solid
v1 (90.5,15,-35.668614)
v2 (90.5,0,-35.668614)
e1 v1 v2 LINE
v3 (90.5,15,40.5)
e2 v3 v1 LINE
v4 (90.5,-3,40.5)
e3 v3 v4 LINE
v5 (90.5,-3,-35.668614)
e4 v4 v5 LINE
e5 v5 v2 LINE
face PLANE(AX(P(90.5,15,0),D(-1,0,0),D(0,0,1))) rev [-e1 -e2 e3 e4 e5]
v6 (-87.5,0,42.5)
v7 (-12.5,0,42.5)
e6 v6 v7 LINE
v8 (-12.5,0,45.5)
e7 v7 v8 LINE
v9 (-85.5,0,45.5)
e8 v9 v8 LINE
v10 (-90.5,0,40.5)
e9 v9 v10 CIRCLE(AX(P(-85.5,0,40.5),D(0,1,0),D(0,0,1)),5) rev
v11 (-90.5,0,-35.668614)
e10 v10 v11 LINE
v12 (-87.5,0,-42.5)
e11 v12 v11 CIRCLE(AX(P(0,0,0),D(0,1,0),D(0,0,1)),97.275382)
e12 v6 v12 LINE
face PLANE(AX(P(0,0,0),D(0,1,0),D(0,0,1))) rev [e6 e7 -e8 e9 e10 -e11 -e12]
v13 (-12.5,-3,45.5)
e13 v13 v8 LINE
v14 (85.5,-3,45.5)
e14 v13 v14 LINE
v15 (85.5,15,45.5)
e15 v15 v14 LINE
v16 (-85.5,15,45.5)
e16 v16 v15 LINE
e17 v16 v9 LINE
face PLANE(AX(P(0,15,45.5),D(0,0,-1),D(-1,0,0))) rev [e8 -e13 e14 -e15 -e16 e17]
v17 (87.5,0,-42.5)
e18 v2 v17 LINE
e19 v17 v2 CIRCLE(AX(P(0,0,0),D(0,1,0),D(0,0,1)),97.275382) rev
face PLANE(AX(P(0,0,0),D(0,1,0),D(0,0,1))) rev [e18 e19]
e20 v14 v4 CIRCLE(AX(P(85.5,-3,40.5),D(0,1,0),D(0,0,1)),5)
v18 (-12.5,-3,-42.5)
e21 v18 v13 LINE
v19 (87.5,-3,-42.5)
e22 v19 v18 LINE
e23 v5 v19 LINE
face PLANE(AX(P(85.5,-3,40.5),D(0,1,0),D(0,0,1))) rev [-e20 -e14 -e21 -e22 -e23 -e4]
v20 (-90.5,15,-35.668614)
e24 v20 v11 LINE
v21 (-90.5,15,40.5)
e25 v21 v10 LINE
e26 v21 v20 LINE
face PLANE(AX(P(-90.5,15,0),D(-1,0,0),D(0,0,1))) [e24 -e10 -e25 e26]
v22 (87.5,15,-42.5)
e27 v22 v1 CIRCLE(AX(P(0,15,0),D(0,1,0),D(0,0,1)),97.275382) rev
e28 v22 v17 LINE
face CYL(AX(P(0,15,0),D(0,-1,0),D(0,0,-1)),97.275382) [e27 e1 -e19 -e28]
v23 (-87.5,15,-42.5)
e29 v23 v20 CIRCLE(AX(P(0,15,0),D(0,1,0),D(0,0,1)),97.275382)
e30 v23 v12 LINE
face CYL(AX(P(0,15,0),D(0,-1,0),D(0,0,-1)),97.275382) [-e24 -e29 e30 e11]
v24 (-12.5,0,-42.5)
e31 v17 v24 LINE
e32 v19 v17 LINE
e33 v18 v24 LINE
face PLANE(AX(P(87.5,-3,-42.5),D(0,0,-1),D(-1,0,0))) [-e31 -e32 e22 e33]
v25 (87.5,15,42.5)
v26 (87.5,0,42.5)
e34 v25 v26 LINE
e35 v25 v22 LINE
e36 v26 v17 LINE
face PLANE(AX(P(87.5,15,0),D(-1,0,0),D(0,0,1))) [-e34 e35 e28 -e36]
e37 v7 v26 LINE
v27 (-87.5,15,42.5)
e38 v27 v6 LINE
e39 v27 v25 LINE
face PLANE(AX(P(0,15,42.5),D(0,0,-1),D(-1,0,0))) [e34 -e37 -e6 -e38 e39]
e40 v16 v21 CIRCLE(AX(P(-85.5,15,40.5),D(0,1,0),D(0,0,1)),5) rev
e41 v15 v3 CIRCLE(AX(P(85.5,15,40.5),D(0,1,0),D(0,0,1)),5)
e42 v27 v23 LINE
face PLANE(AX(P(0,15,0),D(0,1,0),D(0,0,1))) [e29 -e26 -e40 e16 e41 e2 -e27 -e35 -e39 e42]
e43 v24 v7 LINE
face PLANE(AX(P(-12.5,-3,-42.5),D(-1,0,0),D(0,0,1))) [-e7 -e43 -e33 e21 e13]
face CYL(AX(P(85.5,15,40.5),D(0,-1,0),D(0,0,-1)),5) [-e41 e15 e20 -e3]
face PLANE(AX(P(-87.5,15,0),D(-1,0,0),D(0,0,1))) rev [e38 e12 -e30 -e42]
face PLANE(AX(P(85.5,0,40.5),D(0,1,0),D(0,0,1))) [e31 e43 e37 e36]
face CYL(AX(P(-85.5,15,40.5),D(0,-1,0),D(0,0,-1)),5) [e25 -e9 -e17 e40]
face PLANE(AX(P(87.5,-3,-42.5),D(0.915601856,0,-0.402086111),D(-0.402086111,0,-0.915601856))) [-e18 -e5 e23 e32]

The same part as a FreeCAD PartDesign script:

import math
import FreeCAD as App
import Part
import Sketcher
Q = App.Units.Quantity

doc = App.newDocument("Part")
params = doc.addObject("Spreadsheet::Sheet", "Params")
for row, (alias, value) in enumerate([
    ("sketch1_radius", "5 mm"),
    ("sketch1_width", "171 mm"),
    ("sketch1_width2", "175 mm"),
    ("sketch1_height", "85 mm"),
    ("pad1_length", "15 mm"),
    ("sketch2_radius", "5 mm"),
    ("sketch2_width", "100 mm"),
    ("sketch2_width2", "98 mm"),
    ("sketch2_height", "88 mm"),
    ("pad2_length", "3 mm"),
], start=1):
    params.set(f"A{row}", alias)
    params.set(f"B{row}", "=" + value)
    params.setAlias(f"B{row}", alias)

body = doc.addObject("PartDesign::Body", "Body")

sketch1 = doc.addObject("Sketcher::SketchObject", "Sketch")
body.addObject(sketch1)
sketch1.AttachmentSupport = (doc.XZ_Plane, [""])
sketch1.MapMode = "FlatFace"
sketch1.addGeometry([
    Part.ArcOfCircle(Part.Circle(App.Vector(-85.5, 40.5, 0), App.Vector(0, 0, 1), 5), math.radians(90), math.radians(180)),
    Part.LineSegment(App.Vector(-85.5, 45.5, 0), App.Vector(85.5, 45.5, 0)),
    Part.ArcOfCircle(Part.Circle(App.Vector(85.5, 40.5, 0), App.Vector(0, 0, 1), 5), math.radians(0), math.radians(90)),
    Part.LineSegment(App.Vector(90.5, 40.5, 0), App.Vector(90.5, -35.668614, 0)),
    Part.ArcOfCircle(Part.Circle(App.Vector(0, 0, 0), App.Vector(0, 0, 1), 97.275382), math.radians(-25.906508), math.radians(-21.510805)),
    Part.LineSegment(App.Vector(87.5, -42.5, 0), App.Vector(87.5, 42.5, 0)),
    Part.LineSegment(App.Vector(87.5, 42.5, 0), App.Vector(-87.5, 42.5, 0)),
    Part.LineSegment(App.Vector(-87.5, 42.5, 0), App.Vector(-87.5, -42.5, 0)),
    Part.ArcOfCircle(Part.Circle(App.Vector(0, 0, 0), App.Vector(0, 0, 1), 97.275382), math.radians(-158.489195), math.radians(-154.093492)),
    Part.LineSegment(App.Vector(-90.5, -35.668614, 0), App.Vector(-90.5, 40.5, 0)),
], False)
sketch1.addConstraint([
    Sketcher.Constraint("Tangent", 0, 1, 1, 1),
    Sketcher.Constraint("Tangent", 1, 2, 2, 2),
    Sketcher.Constraint("Tangent", 2, 1, 3, 1),
    Sketcher.Constraint("Coincident", 3, 2, 4, 2),
    Sketcher.Constraint("Coincident", 4, 1, 5, 1),
    Sketcher.Constraint("Coincident", 5, 2, 6, 1),
    Sketcher.Constraint("Coincident", 6, 2, 7, 1),
    Sketcher.Constraint("Coincident", 7, 2, 8, 2),
    Sketcher.Constraint("Coincident", 8, 1, 9, 1),
    Sketcher.Constraint("Tangent", 9, 2, 0, 2),
    Sketcher.Constraint("Horizontal", 1),
    Sketcher.Constraint("Vertical", 3),
    Sketcher.Constraint("Vertical", 5),
    Sketcher.Constraint("Horizontal", 6),
    Sketcher.Constraint("Vertical", 7),
    Sketcher.Constraint("Vertical", 9),
    Sketcher.Constraint("Coincident", 4, 3, -1, 1),
    Sketcher.Constraint("Coincident", 8, 3, -1, 1),
    Sketcher.Constraint("Equal", 0, 2),
    Sketcher.Constraint("Equal", 4, 8),
    Sketcher.Constraint("Symmetric", 4, 1, 6, 2, -1, 1),
    Sketcher.Constraint("Horizontal", 3, 2, 8, 1),
    Sketcher.Constraint("Radius", 0, Q("5 mm")),
    Sketcher.Constraint("DistanceX", 1, 1, 1, 2, Q("171 mm")),
    Sketcher.Constraint("DistanceX", 6, 2, 6, 1, Q("175 mm")),
    Sketcher.Constraint("DistanceY", 5, 1, 5, 2, Q("85 mm")),
    Sketcher.Constraint("DistanceY", 4, 1, 2, 3, Q("83 mm")),
])
sketch1.setExpression("Constraints[22]", "Params.sketch1_radius")
sketch1.setExpression("Constraints[23]", "Params.sketch1_width")
sketch1.setExpression("Constraints[24]", "Params.sketch1_width2")
sketch1.setExpression("Constraints[25]", "Params.sketch1_height")
pad1 = doc.addObject("PartDesign::Pad", "Pad")
body.addObject(pad1)
pad1.Profile = sketch1
pad1.setExpression("Length", "Params.pad1_length")
pad1.Reversed = True

sketch2 = doc.addObject("Sketcher::SketchObject", "Sketch001")
body.addObject(sketch2)
sketch2.AttachmentSupport = (doc.XZ_Plane, [""])
sketch2.MapMode = "FlatFace"
sketch2.AttachmentOffset = App.Placement(App.Vector(0, 0, 3), App.Rotation())
sketch2.addGeometry([
    Part.LineSegment(App.Vector(87.5, -42.5, 0), App.Vector(-12.5, -42.5, 0)),
    Part.LineSegment(App.Vector(-12.5, -42.5, 0), App.Vector(-12.5, 45.5, 0)),
    Part.LineSegment(App.Vector(-12.5, 45.5, 0), App.Vector(85.5, 45.5, 0)),
    Part.ArcOfCircle(Part.Circle(App.Vector(85.5, 40.5, 0), App.Vector(0, 0, 1), 5), math.radians(0), math.radians(90)),
    Part.LineSegment(App.Vector(90.5, 40.5, 0), App.Vector(90.5, -35.668614, 0)),
    Part.LineSegment(App.Vector(90.5, -35.668614, 0), App.Vector(87.5, -42.5, 0)),
], False)
sketch2.addConstraint([
    Sketcher.Constraint("Coincident", 0, 2, 1, 1),
    Sketcher.Constraint("Coincident", 1, 2, 2, 1),
    Sketcher.Constraint("Tangent", 2, 2, 3, 2),
    Sketcher.Constraint("Tangent", 3, 1, 4, 1),
    Sketcher.Constraint("Coincident", 4, 2, 5, 1),
    Sketcher.Constraint("Coincident", 5, 2, 0, 1),
    Sketcher.Constraint("Horizontal", 0),
    Sketcher.Constraint("Vertical", 1),
    Sketcher.Constraint("Horizontal", 2),
    Sketcher.Constraint("Vertical", 4),
    Sketcher.Constraint("Radius", 3, Q("5 mm")),
    Sketcher.Constraint("DistanceX", 0, 2, 0, 1, Q("100 mm")),
    Sketcher.Constraint("DistanceX", 2, 1, 2, 2, Q("98 mm")),
    Sketcher.Constraint("DistanceY", 1, 1, 1, 2, Q("88 mm")),
    Sketcher.Constraint("DistanceX", -1, 1, 3, 3, Q("85.5 mm")),
    Sketcher.Constraint("DistanceY", -1, 1, 3, 3, Q("40.5 mm")),
    Sketcher.Constraint("Distance", 5, Q("7.461088 mm")),
])
sketch2.setExpression("Constraints[10]", "Params.sketch2_radius")
sketch2.setExpression("Constraints[11]", "Params.sketch2_width")
sketch2.setExpression("Constraints[12]", "Params.sketch2_width2")
sketch2.setExpression("Constraints[13]", "Params.sketch2_height")
pad2 = doc.addObject("PartDesign::Pad", "Pad001")
body.addObject(pad2)
pad2.Profile = sketch2
pad2.setExpression("Length", "Params.pad2_length")
pad2.Reversed = True

doc.recompute()
